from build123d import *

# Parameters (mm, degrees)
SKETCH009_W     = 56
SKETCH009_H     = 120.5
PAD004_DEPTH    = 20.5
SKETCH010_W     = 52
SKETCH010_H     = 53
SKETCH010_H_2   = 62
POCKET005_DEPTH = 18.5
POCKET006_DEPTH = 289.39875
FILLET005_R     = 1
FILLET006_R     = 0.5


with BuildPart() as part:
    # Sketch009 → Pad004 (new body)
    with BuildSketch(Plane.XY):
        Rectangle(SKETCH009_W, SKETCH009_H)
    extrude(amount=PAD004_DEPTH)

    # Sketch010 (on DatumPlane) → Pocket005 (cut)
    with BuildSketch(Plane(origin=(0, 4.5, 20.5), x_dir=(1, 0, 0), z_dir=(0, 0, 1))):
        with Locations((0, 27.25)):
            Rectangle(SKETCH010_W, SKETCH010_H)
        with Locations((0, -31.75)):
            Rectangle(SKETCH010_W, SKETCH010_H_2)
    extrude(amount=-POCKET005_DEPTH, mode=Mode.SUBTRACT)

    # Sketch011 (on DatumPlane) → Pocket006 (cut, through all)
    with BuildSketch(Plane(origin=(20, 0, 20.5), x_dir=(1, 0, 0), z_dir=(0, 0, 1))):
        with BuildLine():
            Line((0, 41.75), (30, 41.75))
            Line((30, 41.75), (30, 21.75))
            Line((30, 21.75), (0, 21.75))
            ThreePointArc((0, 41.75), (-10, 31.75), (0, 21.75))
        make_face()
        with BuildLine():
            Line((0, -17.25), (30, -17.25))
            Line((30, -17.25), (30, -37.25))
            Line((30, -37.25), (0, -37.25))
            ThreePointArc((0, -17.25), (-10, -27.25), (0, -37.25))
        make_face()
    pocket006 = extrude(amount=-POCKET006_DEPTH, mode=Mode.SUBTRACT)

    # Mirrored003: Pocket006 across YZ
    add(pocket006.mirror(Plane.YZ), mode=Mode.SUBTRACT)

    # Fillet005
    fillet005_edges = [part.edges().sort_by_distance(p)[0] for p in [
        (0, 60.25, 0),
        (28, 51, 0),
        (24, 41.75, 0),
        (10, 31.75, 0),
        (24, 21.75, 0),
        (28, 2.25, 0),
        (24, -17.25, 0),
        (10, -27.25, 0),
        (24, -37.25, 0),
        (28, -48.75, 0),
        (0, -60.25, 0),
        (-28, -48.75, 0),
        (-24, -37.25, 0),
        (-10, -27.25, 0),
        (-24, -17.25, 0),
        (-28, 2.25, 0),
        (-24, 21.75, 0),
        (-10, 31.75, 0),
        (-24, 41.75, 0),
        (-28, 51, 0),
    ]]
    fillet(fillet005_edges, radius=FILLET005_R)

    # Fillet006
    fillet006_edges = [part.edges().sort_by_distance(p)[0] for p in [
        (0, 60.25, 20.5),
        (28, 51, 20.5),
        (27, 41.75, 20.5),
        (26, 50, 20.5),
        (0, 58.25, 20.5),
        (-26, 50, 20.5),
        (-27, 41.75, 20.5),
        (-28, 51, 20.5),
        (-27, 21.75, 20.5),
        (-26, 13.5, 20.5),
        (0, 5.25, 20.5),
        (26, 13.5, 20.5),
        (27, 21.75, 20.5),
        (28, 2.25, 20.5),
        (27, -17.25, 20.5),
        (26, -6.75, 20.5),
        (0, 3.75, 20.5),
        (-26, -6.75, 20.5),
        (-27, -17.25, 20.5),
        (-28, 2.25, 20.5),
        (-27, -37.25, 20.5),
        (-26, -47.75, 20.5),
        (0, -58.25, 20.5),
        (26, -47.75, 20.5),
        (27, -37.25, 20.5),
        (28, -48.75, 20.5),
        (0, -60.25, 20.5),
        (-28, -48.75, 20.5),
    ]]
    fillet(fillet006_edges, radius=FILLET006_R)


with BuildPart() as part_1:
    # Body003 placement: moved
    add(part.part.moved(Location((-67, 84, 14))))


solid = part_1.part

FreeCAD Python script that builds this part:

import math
import FreeCAD as App
import Part
import Sketcher
from FreeCAD import Vector


def edges_at(feature, points):
    """Names of the edges that pass closest to the given points."""
    edges = feature.Shape.Edges
    near = lambda p: min(range(len(edges)), key=lambda i: edges[i].distToShape(Part.Vertex(*p))[0])
    return sorted({f"Edge{near(p) + 1}" for p in points})

doc = App.newDocument("Part")
body = doc.addObject("PartDesign::Body", "Body")

sketch1 = doc.addObject("Sketcher::SketchObject", "Sketch")
body.addObject(sketch1)
sketch1.AttachmentSupport = (doc.XY_Plane, [""])
sketch1.MapMode = "FlatFace"
sketch1.addGeometry([
    Part.LineSegment(Vector(-28, 60, 0), Vector(-28, -60, 0)),
    Part.LineSegment(Vector(-28, -60, 0), Vector(28, -60, 0)),
    Part.LineSegment(Vector(28, -60, 0), Vector(28, 60, 0)),
    Part.LineSegment(Vector(28, 60, 0), Vector(-28, 60, 0)),
], False)
sketch1.addConstraint([
    Sketcher.Constraint("Coincident", 0, 2, 1, 1),
    Sketcher.Constraint("Coincident", 1, 2, 2, 1),
    Sketcher.Constraint("Coincident", 2, 2, 3, 1),
    Sketcher.Constraint("Coincident", 3, 2, 0, 1),
    Sketcher.Constraint("Vertical", 0),
    Sketcher.Constraint("Horizontal", 1),
    Sketcher.Constraint("Vertical", 2),
    Sketcher.Constraint("Horizontal", 3),
    Sketcher.Constraint("Symmetric", 0, 2, 2, 2, -1, 1),
    Sketcher.Constraint("DistanceX", 1, 1, 1, 2, 56.0),
    Sketcher.Constraint("DistanceY", 0, 2, 0, 1, 120.5),
])
pad1 = doc.addObject("PartDesign::Pad", "Pad")
body.addObject(pad1)
pad1.Profile = sketch1
pad1.Length = 20.5

sketch2 = doc.addObject("Sketcher::SketchObject", "Sketch001")
body.addObject(sketch2)
sketch2.AttachmentSupport = (doc.XY_Plane, [""])
sketch2.MapMode = "FlatFace"
sketch2.AttachmentOffset = App.Placement(Vector(0, 0, 20.5), App.Rotation())
sketch2.addGeometry([
    Part.LineSegment(Vector(-26, 58, 0), Vector(-26, 5, 0)),
    Part.LineSegment(Vector(-26, 5, 0), Vector(26, 5, 0)),
    Part.LineSegment(Vector(26, 5, 0), Vector(26, 58, 0)),
    Part.LineSegment(Vector(26, 58, 0), Vector(-26, 58, 0)),
    Part.LineSegment(Vector(-26, 4, 0), Vector(-26, -58, 0)),
    Part.LineSegment(Vector(-26, -58, 0), Vector(26, -58, 0)),
    Part.LineSegment(Vector(26, -58, 0), Vector(26, 4, 0)),
    Part.LineSegment(Vector(26, 4, 0), Vector(-26, 4, 0)),
], False)
sketch2.addConstraint([
    Sketcher.Constraint("Coincident", 0, 2, 1, 1),
    Sketcher.Constraint("Coincident", 1, 2, 2, 1),
    Sketcher.Constraint("Coincident", 2, 2, 3, 1),
    Sketcher.Constraint("Coincident", 3, 2, 0, 1),
    Sketcher.Constraint("Coincident", 4, 2, 5, 1),
    Sketcher.Constraint("Coincident", 5, 2, 6, 1),
    Sketcher.Constraint("Coincident", 6, 2, 7, 1),
    Sketcher.Constraint("Coincident", 7, 2, 4, 1),
    Sketcher.Constraint("Vertical", 0),
    Sketcher.Constraint("Horizontal", 1),
    Sketcher.Constraint("Vertical", 2),
    Sketcher.Constraint("Horizontal", 3),
    Sketcher.Constraint("Vertical", 4),
    Sketcher.Constraint("Horizontal", 5),
    Sketcher.Constraint("Vertical", 6),
    Sketcher.Constraint("Horizontal", 7),
    Sketcher.Constraint("Symmetric", 2, 2, 4, 2, -1, 1),
    Sketcher.Constraint("Vertical", 3, 2, 4, 2),
    Sketcher.Constraint("Vertical", 2, 2, 5, 2),
    Sketcher.Constraint("DistanceX", 1, 1, 1, 2, 52.0),
    Sketcher.Constraint("DistanceY", 0, 2, 0, 1, 53.0),
    Sketcher.Constraint("DistanceY", 4, 2, 4, 1, 62.0),
    Sketcher.Constraint("DistanceY", 4, 2, 0, 2, 63.5),
])
pocket1 = doc.addObject("PartDesign::Pocket", "Pocket")
body.addObject(pocket1)
pocket1.Profile = sketch2
pocket1.Length = 18.5

sketch3 = doc.addObject("Sketcher::SketchObject", "Sketch002")
body.addObject(sketch3)
sketch3.AttachmentSupport = (doc.XY_Plane, [""])
sketch3.MapMode = "FlatFace"
sketch3.AttachmentOffset = App.Placement(Vector(0, 0, 20.5), App.Rotation())
sketch3.addGeometry([
    Part.LineSegment(Vector(50, 42, 0), Vector(20, 42, 0)),
    Part.ArcOfCircle(Part.Circle(Vector(20, 32, 0), Vector(0, 0, 1), 10), math.radians(90), math.radians(270)),
    Part.LineSegment(Vector(20, 22, 0), Vector(50, 22, 0)),
    Part.LineSegment(Vector(50, 22, 0), Vector(50, 42, 0)),
    Part.LineSegment(Vector(50, -17, 0), Vector(20, -17, 0)),
    Part.ArcOfCircle(Part.Circle(Vector(20, -27, 0), Vector(0, 0, 1), 10), math.radians(90), math.radians(270)),
    Part.LineSegment(Vector(20, -37, 0), Vector(50, -37, 0)),
    Part.LineSegment(Vector(50, -37, 0), Vector(50, -17, 0)),
], False)
sketch3.addConstraint([
    Sketcher.Constraint("Tangent", 0, 2, 1, 1),
    Sketcher.Constraint("Tangent", 1, 2, 2, 1),
    Sketcher.Constraint("Coincident", 2, 2, 3, 1),
    Sketcher.Constraint("Coincident", 3, 2, 0, 1),
    Sketcher.Constraint("Tangent", 4, 2, 5, 1),
    Sketcher.Constraint("Tangent", 5, 2, 6, 1),
    Sketcher.Constraint("Coincident", 6, 2, 7, 1),
    Sketcher.Constraint("Coincident", 7, 2, 4, 1),
    Sketcher.Constraint("Horizontal", 0),
    Sketcher.Constraint("Horizontal", 2),
    Sketcher.Constraint("Vertical", 3),
    Sketcher.Constraint("Horizontal", 4),
    Sketcher.Constraint("Horizontal", 6),
    Sketcher.Constraint("Vertical", 7),
    Sketcher.Constraint("Equal", 1, 5),
    Sketcher.Constraint("Vertical", 1, 3, 5, 3),
    Sketcher.Constraint("Vertical", 3, 2, 6, 2),
    Sketcher.Constraint("Radius", 1, 10.0),
    Sketcher.Constraint("DistanceX", 0, 2, 0, 1, 30.0),
    Sketcher.Constraint("DistanceX", -1, 1, 1, 3, 20.0),
    Sketcher.Constraint("DistanceY", 5, 3, 1, 3, 59.0),
    Sketcher.Constraint("DistanceY", -1, 1, 1, 3, 31.75),
])
pocket2 = doc.addObject("PartDesign::Pocket", "Pocket001")
body.addObject(pocket2)
pocket2.Profile = sketch3
pocket2.Type = "ThroughAll"
doc.recompute()

mirrored = doc.addObject("PartDesign::Mirrored", "Mirrored")
body.addObject(mirrored)
mirrored.Originals = [pocket2]
mirrored.MirrorPlane = (doc.YZ_Plane, [""])
body.Tip = mirrored
doc.recompute()

fillet = doc.addObject("PartDesign::Fillet", "Fillet")
body.addObject(fillet)
fillet.Base = (mirrored, edges_at(mirrored, [
    (0, 60.25, 0),
    (28, 51, 0),
    (24, 41.75, 0),
    (10, 31.75, 0),
    (24, 21.75, 0),
    (28, 2.25, 0),
    (24, -17.25, 0),
    (10, -27.25, 0),
    (24, -37.25, 0),
    (28, -48.75, 0),
    (0, -60.25, 0),
    (-28, -48.75, 0),
    (-24, -37.25, 0),
    (-10, -27.25, 0),
    (-24, -17.25, 0),
    (-28, 2.25, 0),
    (-24, 21.75, 0),
    (-10, 31.75, 0),
    (-24, 41.75, 0),
    (-28, 51, 0),
]))
fillet.Radius = 1
doc.recompute()

fillet2 = doc.addObject("PartDesign::Fillet", "Fillet001")
body.addObject(fillet2)
fillet2.Base = (fillet, edges_at(fillet, [
    (0, 60.25, 20.5),
    (28, 51, 20.5),
    (27, 41.75, 20.5),
    (26, 50, 20.5),
    (0, 58.25, 20.5),
    (-26, 50, 20.5),
    (-27, 41.75, 20.5),
    (-28, 51, 20.5),
    (-27, 21.75, 20.5),
    (-26, 13.5, 20.5),
    (0, 5.25, 20.5),
    (26, 13.5, 20.5),
    (27, 21.75, 20.5),
    (28, 2.25, 20.5),
    (27, -17.25, 20.5),
    (26, -6.75, 20.5),
    (0, 3.75, 20.5),
    (-26, -6.75, 20.5),
    (-27, -17.25, 20.5),
    (-28, 2.25, 20.5),
    (-27, -37.25, 20.5),
    (-26, -47.75, 20.5),
    (0, -58.25, 20.5),
    (26, -47.75, 20.5),
    (27, -37.25, 20.5),
    (28, -48.75, 20.5),
    (0, -60.25, 20.5),
    (-28, -48.75, 20.5),
]))
fillet2.Radius = 0.5
body2 = doc.addObject("PartDesign::Body", "Body001")
doc.recompute()

body.Placement = App.Placement(Vector(-67, 84, 14), App.Rotation(Vector(0, 0, 1), 0))
boolean = doc.addObject("PartDesign::Boolean", "Boolean")
body2.addObject(boolean)
boolean.Type = "Fuse"
boolean.addObjects([body])

doc.recompute()
